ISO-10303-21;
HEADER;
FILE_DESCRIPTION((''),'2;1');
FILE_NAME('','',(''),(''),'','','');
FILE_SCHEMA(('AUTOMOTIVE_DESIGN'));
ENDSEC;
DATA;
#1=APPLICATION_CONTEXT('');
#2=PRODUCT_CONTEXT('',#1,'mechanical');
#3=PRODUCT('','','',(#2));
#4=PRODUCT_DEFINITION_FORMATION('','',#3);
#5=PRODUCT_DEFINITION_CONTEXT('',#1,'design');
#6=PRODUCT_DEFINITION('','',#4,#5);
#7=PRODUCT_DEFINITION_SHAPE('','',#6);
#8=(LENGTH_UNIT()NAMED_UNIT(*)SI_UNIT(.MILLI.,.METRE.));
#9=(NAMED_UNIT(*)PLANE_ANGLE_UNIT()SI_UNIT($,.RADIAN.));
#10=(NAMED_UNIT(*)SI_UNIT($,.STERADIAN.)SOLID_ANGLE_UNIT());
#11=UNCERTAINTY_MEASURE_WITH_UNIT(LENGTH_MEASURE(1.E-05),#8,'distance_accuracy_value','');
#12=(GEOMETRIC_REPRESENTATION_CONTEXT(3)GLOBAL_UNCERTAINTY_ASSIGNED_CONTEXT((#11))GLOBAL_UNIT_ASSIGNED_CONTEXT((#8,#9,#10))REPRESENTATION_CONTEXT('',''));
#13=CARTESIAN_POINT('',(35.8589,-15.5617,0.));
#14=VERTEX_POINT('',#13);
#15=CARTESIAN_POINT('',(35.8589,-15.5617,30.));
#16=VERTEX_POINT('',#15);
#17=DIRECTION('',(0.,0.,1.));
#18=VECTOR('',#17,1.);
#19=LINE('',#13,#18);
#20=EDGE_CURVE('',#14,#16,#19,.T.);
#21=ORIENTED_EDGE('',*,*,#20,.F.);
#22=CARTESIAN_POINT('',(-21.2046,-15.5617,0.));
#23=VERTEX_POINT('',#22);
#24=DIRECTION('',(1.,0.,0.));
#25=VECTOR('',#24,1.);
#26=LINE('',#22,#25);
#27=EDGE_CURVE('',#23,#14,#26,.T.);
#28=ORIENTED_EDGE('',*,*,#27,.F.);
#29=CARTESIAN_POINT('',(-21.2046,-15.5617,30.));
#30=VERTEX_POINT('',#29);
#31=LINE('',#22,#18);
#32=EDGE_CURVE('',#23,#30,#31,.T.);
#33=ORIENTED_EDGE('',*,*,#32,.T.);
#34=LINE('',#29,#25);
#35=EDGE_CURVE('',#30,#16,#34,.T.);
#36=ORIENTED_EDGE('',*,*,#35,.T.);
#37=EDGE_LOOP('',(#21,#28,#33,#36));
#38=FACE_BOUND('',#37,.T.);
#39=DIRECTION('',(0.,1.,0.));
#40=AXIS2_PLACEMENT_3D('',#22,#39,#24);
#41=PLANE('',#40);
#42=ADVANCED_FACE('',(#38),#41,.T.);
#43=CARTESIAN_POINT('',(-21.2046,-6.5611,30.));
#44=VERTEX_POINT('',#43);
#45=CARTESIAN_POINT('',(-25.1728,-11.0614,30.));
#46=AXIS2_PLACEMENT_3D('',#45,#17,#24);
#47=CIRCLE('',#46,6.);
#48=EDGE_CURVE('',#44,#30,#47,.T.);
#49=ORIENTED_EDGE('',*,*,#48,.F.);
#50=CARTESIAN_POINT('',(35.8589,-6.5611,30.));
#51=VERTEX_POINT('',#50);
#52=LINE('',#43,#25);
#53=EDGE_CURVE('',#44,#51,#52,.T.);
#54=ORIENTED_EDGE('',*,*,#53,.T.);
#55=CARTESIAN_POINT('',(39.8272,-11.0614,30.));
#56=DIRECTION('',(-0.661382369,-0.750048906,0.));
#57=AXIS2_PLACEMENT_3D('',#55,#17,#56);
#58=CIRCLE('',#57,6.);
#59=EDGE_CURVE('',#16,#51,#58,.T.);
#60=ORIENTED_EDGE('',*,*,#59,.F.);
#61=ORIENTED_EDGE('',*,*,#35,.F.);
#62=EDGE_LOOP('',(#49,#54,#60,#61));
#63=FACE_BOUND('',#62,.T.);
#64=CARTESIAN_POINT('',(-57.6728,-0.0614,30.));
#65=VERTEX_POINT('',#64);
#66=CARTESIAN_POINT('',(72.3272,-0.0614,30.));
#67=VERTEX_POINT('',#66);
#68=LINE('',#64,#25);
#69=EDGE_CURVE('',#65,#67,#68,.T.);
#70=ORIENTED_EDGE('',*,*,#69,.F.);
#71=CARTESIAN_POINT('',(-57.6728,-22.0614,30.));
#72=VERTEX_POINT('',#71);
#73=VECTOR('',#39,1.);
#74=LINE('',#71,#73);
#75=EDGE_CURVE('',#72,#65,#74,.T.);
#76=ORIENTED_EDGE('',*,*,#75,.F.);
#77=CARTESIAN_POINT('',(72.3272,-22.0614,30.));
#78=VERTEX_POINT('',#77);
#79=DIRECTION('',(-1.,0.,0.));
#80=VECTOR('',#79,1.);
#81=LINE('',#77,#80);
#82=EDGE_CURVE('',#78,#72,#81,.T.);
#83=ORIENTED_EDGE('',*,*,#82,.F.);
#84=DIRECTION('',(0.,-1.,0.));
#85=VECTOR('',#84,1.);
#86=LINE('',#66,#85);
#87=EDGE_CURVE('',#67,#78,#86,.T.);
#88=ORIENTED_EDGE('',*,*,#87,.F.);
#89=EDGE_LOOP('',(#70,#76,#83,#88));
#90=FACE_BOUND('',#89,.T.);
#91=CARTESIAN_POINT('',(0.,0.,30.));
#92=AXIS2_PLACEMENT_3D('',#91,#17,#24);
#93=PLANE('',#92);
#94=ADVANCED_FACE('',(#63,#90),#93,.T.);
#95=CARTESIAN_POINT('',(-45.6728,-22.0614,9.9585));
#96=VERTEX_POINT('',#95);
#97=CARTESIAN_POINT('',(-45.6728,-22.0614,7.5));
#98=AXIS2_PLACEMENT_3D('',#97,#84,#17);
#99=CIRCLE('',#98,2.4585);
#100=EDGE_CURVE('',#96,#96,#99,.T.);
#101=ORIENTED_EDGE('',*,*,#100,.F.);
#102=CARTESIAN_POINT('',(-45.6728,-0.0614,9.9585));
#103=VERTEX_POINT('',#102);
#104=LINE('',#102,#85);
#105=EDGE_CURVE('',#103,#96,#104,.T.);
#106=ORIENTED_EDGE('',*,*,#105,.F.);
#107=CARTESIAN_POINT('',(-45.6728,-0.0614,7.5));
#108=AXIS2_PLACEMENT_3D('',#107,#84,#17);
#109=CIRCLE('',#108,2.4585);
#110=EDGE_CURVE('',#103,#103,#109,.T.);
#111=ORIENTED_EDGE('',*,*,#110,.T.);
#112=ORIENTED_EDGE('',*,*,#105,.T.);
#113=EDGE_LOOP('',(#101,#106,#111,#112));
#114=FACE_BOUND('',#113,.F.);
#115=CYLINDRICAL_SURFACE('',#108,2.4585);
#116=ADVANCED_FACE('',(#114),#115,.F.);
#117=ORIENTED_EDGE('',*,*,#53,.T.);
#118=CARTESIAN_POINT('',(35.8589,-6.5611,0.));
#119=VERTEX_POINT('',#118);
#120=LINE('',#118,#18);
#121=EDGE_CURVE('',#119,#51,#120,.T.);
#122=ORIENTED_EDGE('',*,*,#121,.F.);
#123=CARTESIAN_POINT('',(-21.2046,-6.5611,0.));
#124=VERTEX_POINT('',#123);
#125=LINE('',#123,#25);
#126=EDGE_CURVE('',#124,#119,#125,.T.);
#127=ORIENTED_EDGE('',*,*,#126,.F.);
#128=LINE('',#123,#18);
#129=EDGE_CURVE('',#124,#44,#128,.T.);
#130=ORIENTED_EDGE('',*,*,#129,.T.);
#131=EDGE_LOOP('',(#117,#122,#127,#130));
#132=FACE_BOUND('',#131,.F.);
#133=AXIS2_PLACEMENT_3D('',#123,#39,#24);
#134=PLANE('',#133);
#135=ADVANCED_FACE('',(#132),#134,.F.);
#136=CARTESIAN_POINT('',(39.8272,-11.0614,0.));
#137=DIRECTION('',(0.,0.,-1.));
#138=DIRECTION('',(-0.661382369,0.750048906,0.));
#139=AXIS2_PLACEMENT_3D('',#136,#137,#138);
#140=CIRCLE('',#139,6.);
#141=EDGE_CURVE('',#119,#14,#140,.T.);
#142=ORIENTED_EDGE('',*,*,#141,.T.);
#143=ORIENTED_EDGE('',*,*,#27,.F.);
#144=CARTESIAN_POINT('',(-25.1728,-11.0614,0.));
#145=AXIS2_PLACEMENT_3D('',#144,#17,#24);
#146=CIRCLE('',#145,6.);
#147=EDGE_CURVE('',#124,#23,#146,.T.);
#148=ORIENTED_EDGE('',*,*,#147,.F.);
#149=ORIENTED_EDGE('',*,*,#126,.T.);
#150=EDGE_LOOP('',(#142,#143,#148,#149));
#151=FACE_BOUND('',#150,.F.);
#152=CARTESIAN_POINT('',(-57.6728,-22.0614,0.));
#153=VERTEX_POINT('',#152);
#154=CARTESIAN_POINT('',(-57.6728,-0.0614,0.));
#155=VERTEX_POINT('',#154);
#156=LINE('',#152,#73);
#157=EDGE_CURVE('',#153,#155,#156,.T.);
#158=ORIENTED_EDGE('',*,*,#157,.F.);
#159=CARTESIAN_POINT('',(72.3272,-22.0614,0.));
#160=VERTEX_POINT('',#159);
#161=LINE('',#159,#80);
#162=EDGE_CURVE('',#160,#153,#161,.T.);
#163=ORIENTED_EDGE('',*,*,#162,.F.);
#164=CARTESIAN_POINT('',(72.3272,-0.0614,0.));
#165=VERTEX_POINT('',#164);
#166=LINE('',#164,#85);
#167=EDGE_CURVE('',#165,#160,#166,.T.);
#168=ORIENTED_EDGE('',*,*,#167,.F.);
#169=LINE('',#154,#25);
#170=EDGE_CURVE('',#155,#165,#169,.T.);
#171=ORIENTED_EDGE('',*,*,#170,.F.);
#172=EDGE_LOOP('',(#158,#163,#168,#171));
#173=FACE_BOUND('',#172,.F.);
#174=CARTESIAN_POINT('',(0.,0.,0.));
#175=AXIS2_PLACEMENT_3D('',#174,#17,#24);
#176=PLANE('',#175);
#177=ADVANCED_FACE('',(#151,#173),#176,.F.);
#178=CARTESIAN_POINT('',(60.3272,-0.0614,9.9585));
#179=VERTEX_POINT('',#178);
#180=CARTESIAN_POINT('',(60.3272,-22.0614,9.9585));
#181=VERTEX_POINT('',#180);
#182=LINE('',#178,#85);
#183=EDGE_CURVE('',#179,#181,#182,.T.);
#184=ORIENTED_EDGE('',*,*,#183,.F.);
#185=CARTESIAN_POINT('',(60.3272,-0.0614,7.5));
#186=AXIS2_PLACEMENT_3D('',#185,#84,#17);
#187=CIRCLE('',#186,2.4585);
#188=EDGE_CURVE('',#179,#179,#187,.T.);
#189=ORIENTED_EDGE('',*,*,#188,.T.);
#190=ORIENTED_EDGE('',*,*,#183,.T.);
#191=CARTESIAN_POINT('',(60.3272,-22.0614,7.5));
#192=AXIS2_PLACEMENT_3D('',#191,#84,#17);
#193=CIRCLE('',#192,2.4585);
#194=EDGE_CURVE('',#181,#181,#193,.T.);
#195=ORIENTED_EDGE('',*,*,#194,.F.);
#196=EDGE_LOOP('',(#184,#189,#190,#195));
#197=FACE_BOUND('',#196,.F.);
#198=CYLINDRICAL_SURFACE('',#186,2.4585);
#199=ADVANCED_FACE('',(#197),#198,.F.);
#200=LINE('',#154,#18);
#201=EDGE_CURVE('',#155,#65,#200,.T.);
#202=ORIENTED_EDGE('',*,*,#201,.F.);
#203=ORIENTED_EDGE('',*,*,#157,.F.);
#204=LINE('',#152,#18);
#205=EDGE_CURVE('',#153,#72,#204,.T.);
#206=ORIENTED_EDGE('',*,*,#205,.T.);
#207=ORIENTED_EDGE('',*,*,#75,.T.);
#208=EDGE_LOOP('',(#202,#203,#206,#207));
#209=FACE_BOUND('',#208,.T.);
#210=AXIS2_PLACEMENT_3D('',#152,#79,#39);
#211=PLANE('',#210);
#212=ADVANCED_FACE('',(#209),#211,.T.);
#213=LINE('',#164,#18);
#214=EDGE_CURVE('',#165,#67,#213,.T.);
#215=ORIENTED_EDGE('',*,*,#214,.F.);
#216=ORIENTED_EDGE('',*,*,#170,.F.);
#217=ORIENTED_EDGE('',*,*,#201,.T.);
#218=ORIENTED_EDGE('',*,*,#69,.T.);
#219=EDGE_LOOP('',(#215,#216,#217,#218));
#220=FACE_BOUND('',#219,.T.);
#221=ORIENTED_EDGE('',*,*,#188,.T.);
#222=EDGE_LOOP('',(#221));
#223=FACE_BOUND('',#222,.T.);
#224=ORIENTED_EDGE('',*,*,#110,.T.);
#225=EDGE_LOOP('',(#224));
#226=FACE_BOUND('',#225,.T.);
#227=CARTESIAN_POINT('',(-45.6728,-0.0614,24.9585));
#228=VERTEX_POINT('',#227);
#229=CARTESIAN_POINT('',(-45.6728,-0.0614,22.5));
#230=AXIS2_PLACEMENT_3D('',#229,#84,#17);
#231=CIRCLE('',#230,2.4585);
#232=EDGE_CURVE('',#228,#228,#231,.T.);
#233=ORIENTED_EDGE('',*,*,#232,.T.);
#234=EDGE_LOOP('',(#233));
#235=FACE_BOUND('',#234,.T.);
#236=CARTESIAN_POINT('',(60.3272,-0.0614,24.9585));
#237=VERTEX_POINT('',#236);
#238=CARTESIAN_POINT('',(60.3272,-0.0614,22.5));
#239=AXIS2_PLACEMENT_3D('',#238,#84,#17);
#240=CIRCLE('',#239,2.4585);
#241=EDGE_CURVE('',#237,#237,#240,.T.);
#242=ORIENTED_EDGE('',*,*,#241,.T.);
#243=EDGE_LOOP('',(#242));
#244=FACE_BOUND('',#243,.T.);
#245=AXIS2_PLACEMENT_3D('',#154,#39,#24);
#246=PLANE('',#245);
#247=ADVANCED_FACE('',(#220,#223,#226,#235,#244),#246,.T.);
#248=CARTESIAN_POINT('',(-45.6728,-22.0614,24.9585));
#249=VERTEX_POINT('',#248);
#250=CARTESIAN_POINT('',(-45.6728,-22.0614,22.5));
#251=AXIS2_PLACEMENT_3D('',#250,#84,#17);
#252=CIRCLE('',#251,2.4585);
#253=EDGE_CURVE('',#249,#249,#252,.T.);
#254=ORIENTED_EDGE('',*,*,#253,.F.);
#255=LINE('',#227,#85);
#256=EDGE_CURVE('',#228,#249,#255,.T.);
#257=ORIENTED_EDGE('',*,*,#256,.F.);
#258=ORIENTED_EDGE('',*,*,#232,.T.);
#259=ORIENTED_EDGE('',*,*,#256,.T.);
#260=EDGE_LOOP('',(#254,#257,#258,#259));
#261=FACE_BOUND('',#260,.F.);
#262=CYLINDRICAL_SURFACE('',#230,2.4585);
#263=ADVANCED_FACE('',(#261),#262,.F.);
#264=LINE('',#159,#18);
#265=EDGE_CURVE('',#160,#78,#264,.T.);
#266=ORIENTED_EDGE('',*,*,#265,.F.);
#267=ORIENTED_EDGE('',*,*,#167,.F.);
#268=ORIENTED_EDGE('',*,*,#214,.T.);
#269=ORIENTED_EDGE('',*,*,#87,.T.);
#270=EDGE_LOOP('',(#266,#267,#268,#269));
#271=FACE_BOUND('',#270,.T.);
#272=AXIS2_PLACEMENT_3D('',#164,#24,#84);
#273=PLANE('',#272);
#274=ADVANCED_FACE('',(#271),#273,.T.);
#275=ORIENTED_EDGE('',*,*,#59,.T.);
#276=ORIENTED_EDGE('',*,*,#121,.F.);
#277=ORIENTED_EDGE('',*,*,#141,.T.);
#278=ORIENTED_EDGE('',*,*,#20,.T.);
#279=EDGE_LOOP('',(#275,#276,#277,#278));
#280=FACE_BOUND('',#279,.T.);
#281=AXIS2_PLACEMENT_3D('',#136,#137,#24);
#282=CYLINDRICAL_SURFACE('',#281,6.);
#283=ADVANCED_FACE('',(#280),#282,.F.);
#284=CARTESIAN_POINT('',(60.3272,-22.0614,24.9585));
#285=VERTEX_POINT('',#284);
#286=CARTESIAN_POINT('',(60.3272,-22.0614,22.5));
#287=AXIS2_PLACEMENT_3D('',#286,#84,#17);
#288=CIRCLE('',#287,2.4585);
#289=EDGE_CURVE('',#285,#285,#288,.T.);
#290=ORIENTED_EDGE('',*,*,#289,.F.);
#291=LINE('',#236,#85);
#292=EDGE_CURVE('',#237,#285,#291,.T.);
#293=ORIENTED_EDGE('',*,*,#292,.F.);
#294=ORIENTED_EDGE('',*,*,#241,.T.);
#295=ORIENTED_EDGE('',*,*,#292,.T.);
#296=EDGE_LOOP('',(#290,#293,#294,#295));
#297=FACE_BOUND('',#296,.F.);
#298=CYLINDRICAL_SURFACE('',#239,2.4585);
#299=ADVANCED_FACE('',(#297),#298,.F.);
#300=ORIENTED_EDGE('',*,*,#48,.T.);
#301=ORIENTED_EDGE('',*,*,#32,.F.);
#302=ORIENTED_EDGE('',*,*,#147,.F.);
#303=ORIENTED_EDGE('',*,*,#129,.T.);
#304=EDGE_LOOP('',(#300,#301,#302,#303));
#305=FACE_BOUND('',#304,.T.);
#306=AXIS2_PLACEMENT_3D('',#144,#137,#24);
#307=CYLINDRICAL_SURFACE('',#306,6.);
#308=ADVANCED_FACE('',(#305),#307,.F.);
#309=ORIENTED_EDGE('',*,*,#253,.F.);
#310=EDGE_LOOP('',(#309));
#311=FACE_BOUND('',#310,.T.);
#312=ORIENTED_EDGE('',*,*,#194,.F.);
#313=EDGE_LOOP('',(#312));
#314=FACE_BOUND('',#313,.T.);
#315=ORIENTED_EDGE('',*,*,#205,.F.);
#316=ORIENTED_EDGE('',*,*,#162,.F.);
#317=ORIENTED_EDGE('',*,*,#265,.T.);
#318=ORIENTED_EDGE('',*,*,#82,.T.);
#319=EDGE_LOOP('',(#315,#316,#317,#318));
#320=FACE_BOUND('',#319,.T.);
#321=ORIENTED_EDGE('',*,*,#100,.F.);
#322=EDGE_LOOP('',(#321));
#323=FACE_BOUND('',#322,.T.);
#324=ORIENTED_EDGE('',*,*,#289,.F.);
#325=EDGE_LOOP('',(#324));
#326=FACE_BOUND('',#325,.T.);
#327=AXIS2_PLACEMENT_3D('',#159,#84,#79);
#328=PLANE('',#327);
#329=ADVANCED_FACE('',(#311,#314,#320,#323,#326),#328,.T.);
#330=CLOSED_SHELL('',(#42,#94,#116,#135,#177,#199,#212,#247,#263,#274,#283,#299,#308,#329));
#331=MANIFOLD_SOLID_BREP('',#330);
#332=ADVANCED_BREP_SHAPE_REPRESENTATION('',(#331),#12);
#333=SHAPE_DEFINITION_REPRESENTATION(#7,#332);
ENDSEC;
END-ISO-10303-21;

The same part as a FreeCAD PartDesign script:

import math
import FreeCAD as App
import Part
import Sketcher

V = App.Vector

doc = App.newDocument("Part")
body = doc.addObject("PartDesign::Body", "Body")

sketch1 = body.newObject("Sketcher::SketchObject", "Sketch")
sketch1.AttachmentSupport = (doc.getObject("XY_Plane"), [""])
sketch1.MapMode = "FlatFace"
sketch1.addGeometry([
    Part.LineSegment(V(72.3272, -0.0614, 0), V(-57.6728, -0.0614, 0)),
    Part.LineSegment(V(-57.6728, -0.0614, 0), V(-57.6728, -22.0614, 0)),
    Part.LineSegment(V(-57.6728, -22.0614, 0), V(72.3272, -22.0614, 0)),
    Part.LineSegment(V(72.3272, -22.0614, 0), V(72.3272, -0.0614, 0)),
], False)
sketch1.addConstraint([
    Sketcher.Constraint("Coincident", 0, 2, 1, 1),
    Sketcher.Constraint("Coincident", 1, 2, 2, 1),
    Sketcher.Constraint("Coincident", 2, 2, 3, 1),
    Sketcher.Constraint("Coincident", 3, 2, 0, 1),
    Sketcher.Constraint("Horizontal", 0),
    Sketcher.Constraint("Vertical", 1),
    Sketcher.Constraint("Horizontal", 2),
    Sketcher.Constraint("Vertical", 3),
    Sketcher.Constraint("DistanceX", 0, 2, 0, 1, 130.0),
    Sketcher.Constraint("DistanceY", 1, 2, 1, 1, 22.0),
    Sketcher.Constraint("DistanceX", 0, 2, -1, 1, 57.6728),
    Sketcher.Constraint("DistanceY", 0, 2, -1, 1, 0.0614),
])
pad1 = body.newObject("PartDesign::Pad", "Pad")
pad1.Profile = sketch1
pad1.Length = 30

sketch2 = body.newObject("Sketcher::SketchObject", "Sketch001")
sketch2.AttachmentSupport = (doc.getObject("XY_Plane"), [""])
sketch2.MapMode = "FlatFace"
sketch2.addGeometry([
    Part.ArcOfCircle(Part.Circle(V(-25.1728, -11.0614, 0), V(0, 0, 1), 6), math.radians(48.595331), math.radians(311.404669)),
    Part.LineSegment(V(-21.2046, -15.5617, 0), V(35.8589, -15.5617, 0)),
    Part.ArcOfCircle(Part.Circle(V(39.8272, -11.0614, 0), V(0, 0, 1), 6), math.radians(-131.405386), math.radians(131.405386)),
    Part.LineSegment(V(35.8589, -6.5611, 0), V(-21.2046, -6.5611, 0)),
], False)
sketch2.addConstraint([
    Sketcher.Constraint("Coincident", 0, 2, 1, 1),
    Sketcher.Constraint("Coincident", 1, 2, 2, 1),
    Sketcher.Constraint("Coincident", 2, 2, 3, 1),
    Sketcher.Constraint("Coincident", 3, 2, 0, 1),
    Sketcher.Constraint("Horizontal", 1),
    Sketcher.Constraint("Horizontal", 3),
    Sketcher.Constraint("Equal", 0, 2),
    Sketcher.Constraint("Horizontal", 0, 3, 2, 3),
    Sketcher.Constraint("Vertical", 1, 2, 2, 2),
    Sketcher.Constraint("Radius", 0, 6.0),
    Sketcher.Constraint("DistanceX", 0, 3, 2, 3, 65.0),
    Sketcher.Constraint("DistanceX", 1, 1, 1, 2, 57.0635),
    Sketcher.Constraint("DistanceX", -1, 1, 1, 2, 35.859),
    Sketcher.Constraint("DistanceY", 2, 2, -1, 1, 6.561),
])
pocket1 = body.newObject("PartDesign::Pocket", "Pocket")
pocket1.Profile = sketch2
pocket1.Length = 30
pocket1.Reversed = True

sketch3 = body.newObject("Sketcher::SketchObject", "Sketch002")
sketch3.AttachmentSupport = (doc.getObject("XZ_Plane"), [""])
sketch3.MapMode = "FlatFace"
sketch3.AttachmentOffset = App.Placement(V(0, 0, 0.0614), App.Rotation())
sketch3.addGeometry([
    Part.Circle(V(-45.6728, 7.5, 0), V(0, 0, 1), 2.4585),
    Part.Circle(V(-45.6728, 22.5, 0), V(0, 0, 1), 2.4585),
    Part.Circle(V(60.3272, 7.5, 0), V(0, 0, 1), 2.4585),
    Part.Circle(V(60.3272, 22.5, 0), V(0, 0, 1), 2.4585),
], False)
sketch3.addConstraint([
    Sketcher.Constraint("Equal", 0, 1),
    Sketcher.Constraint("Equal", 1, 2),
    Sketcher.Constraint("Equal", 2, 3),
    Sketcher.Constraint("Horizontal", 0, 3, 2, 3),
    Sketcher.Constraint("Horizontal", 1, 3, 3, 3),
    Sketcher.Constraint("Vertical", 0, 3, 1, 3),
    Sketcher.Constraint("Vertical", 2, 3, 3, 3),
    Sketcher.Constraint("Diameter", 0, 4.917),
    Sketcher.Constraint("DistanceY", 0, 3, 1, 3, 15.0),
    Sketcher.Constraint("DistanceX", 0, 3, 2, 3, 106.0),
    Sketcher.Constraint("DistanceY", -1, 1, 0, 3, 7.5),
    Sketcher.Constraint("DistanceX", 0, 3, -1, 1, 45.6728),
])
doc.recompute()
hole = body.newObject("PartDesign::Hole", "Hole")
hole.Profile = sketch3
hole.ThreadType = "None"
hole.Diameter = 4.917
hole.DepthType = "ThroughAll"
hole.Reversed = True

doc.recompute()
